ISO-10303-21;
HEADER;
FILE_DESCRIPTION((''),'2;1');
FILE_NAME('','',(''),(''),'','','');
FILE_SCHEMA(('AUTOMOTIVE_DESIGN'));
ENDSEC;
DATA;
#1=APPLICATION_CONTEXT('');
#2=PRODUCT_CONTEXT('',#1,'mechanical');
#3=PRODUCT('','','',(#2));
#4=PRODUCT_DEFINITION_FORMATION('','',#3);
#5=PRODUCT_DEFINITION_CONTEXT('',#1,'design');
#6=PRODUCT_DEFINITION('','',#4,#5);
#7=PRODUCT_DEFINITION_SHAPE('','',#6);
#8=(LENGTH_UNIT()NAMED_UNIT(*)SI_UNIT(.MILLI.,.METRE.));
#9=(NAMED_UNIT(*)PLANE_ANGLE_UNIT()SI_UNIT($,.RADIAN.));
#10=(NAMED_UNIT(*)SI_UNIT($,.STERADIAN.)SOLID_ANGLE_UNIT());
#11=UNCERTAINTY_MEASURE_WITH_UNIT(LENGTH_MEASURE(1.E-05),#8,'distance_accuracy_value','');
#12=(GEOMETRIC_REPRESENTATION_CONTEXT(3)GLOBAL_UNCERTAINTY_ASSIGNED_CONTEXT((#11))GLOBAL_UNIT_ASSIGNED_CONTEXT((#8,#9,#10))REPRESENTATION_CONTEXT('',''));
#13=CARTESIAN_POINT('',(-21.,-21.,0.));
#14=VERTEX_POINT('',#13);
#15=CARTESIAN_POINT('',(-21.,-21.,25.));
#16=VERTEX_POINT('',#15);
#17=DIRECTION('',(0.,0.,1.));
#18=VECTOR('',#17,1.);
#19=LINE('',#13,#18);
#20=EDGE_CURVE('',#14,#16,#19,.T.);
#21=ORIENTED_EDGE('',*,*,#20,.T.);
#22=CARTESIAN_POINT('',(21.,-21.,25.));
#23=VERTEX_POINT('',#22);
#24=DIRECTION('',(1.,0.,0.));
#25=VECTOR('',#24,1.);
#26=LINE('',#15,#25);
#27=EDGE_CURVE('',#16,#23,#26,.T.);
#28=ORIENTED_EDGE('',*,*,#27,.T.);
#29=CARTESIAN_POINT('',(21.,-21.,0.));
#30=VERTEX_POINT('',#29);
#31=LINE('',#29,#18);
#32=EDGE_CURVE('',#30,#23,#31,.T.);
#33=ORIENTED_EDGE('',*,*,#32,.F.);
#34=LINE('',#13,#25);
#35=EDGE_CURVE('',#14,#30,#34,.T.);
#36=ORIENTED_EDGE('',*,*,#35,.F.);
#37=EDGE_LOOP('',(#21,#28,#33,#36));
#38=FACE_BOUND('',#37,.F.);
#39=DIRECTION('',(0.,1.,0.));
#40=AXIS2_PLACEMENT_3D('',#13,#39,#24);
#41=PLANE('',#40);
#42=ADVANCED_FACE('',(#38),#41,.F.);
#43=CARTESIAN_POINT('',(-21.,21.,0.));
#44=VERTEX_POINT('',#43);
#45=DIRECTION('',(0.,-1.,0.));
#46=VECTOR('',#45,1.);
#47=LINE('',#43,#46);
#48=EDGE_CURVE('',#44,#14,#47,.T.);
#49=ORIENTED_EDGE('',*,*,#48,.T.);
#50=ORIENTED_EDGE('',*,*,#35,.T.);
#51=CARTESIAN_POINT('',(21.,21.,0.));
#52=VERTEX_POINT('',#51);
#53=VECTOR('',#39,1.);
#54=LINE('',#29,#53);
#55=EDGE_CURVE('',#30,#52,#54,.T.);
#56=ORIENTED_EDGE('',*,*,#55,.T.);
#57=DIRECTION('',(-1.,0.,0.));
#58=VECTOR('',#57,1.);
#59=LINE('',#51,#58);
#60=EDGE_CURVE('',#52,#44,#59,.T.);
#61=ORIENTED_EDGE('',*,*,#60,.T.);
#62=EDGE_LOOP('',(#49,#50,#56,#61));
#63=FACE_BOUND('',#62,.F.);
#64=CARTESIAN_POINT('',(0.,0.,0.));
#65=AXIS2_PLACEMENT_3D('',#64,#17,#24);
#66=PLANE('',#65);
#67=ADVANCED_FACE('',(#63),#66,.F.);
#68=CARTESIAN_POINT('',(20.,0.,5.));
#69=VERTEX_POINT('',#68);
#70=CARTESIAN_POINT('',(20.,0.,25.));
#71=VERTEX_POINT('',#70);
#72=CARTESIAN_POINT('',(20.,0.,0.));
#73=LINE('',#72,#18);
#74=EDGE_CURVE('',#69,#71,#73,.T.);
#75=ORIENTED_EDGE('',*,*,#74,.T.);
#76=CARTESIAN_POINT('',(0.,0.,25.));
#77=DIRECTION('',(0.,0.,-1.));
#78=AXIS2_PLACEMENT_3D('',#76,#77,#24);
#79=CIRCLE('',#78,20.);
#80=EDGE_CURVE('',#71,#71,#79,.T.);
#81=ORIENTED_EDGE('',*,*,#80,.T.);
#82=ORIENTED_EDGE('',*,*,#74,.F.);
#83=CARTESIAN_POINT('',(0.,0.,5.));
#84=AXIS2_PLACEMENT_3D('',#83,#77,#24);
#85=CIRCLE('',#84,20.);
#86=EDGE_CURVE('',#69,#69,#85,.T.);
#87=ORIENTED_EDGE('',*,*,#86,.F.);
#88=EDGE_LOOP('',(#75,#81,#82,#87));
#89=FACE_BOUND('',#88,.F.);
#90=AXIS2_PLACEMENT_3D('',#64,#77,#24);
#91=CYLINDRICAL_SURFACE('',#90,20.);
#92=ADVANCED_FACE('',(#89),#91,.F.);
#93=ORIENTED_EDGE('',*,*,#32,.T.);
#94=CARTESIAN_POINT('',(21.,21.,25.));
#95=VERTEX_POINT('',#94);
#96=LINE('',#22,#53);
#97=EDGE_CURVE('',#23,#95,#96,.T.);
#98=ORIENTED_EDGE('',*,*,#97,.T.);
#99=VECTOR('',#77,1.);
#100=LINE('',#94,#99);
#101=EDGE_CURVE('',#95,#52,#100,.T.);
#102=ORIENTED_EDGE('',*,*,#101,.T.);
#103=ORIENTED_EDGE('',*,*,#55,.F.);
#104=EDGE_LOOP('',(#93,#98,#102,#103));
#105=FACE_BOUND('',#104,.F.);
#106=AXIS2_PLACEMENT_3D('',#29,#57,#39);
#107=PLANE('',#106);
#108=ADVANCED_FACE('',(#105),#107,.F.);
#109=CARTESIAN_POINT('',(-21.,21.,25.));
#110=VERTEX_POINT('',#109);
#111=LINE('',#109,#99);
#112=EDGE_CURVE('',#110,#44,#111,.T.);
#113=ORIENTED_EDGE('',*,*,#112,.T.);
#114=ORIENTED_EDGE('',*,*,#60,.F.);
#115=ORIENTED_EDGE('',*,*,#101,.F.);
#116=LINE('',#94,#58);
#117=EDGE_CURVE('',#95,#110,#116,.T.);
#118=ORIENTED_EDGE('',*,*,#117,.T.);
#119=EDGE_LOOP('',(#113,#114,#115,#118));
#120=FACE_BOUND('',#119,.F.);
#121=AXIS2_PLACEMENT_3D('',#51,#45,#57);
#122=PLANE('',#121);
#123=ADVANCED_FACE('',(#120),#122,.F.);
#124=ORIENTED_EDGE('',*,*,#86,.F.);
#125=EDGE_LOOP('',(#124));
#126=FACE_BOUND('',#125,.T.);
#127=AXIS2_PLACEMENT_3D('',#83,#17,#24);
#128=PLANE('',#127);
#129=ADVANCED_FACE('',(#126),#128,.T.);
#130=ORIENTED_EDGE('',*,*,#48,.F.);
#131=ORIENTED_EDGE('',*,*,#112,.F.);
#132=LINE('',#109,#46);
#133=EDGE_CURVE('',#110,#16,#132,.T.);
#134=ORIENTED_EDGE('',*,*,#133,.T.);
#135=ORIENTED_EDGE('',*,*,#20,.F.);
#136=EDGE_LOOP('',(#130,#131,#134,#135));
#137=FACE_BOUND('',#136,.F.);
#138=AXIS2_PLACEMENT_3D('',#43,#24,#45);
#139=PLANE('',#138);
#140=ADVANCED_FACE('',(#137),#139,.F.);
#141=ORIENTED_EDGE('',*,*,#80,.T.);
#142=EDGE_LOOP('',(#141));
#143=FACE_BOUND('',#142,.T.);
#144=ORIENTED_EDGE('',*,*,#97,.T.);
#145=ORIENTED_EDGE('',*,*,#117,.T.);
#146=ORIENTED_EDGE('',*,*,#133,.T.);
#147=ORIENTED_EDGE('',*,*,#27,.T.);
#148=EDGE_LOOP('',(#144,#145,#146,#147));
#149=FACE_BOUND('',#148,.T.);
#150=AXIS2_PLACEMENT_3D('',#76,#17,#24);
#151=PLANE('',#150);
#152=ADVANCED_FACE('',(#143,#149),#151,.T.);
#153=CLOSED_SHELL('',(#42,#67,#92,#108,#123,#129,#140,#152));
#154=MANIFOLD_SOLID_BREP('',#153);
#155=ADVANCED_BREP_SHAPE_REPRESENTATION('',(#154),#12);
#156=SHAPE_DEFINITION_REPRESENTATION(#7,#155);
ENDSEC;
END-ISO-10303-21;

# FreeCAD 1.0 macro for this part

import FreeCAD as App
import Part
import Sketcher

doc = App.newDocument("Part")
params = doc.addObject("Spreadsheet::Sheet", "Params")
for row, (alias, value) in enumerate([
    ("sketch1_width", "42 mm"),
    ("pad1_length", "5 mm"),
    ("sketch2_diameter", "40 mm"),
    ("sketch2_width", "42 mm"),
    ("pad2_length", "25 mm"),
], start=1):
    params.set(f"A{row}", alias)
    params.set(f"B{row}", "=" + value)
    params.setAlias(f"B{row}", alias)

body = doc.addObject("PartDesign::Body", "Body")

# Sketch on XY plane
sketch1 = body.newObject("Sketcher::SketchObject", "Sketch")
sketch1.AttachmentSupport = (doc.getObject("XY_Plane"), [""])
sketch1.MapMode = "FlatFace"
sketch1.addGeometry(Part.LineSegment(App.Vector(-21, 21, 0), App.Vector(-21, -21, 0)), False)
sketch1.addGeometry(Part.LineSegment(App.Vector(-21, -21, 0), App.Vector(21, -21, 0)), False)
sketch1.addGeometry(Part.LineSegment(App.Vector(21, -21, 0), App.Vector(21, 21, 0)), False)
sketch1.addGeometry(Part.LineSegment(App.Vector(21, 21, 0), App.Vector(-21, 21, 0)), False)
sketch1.addConstraint(Sketcher.Constraint("Coincident", 0, 2, 1, 1))
sketch1.addConstraint(Sketcher.Constraint("Coincident", 1, 2, 2, 1))
sketch1.addConstraint(Sketcher.Constraint("Coincident", 2, 2, 3, 1))
sketch1.addConstraint(Sketcher.Constraint("Coincident", 3, 2, 0, 1))
sketch1.addConstraint(Sketcher.Constraint("Vertical", 0))
sketch1.addConstraint(Sketcher.Constraint("Horizontal", 1))
sketch1.addConstraint(Sketcher.Constraint("Vertical", 2))
sketch1.addConstraint(Sketcher.Constraint("Horizontal", 3))
sketch1.addConstraint(Sketcher.Constraint("Symmetric", 0, 2, 2, 2, -1, 1))
sketch1.addConstraint(Sketcher.Constraint("Equal", 3, 0))
sketch1.addConstraint(Sketcher.Constraint("DistanceX", 1, 1, 1, 2, 42.0))
sketch1.setExpression("Constraints[10]", "Params.sketch1_width")
pad1 = body.newObject("PartDesign::Pad", "Pad")
pad1.Profile = sketch1
pad1.setExpression("Length", "Params.pad1_length")

# Sketch on XY plane
sketch2 = body.newObject("Sketcher::SketchObject", "Sketch001")
sketch2.AttachmentSupport = (doc.getObject("XY_Plane"), [""])
sketch2.MapMode = "FlatFace"
sketch2.addGeometry(Part.LineSegment(App.Vector(-21, 21, 0), App.Vector(-21, -21, 0)), False)
sketch2.addGeometry(Part.LineSegment(App.Vector(-21, -21, 0), App.Vector(21, -21, 0)), False)
sketch2.addGeometry(Part.LineSegment(App.Vector(21, -21, 0), App.Vector(21, 21, 0)), False)
sketch2.addGeometry(Part.LineSegment(App.Vector(21, 21, 0), App.Vector(-21, 21, 0)), False)
sketch2.addGeometry(Part.Circle(App.Vector(0, 0, 0), App.Vector(0, 0, 1), 20), False)
sketch2.addConstraint(Sketcher.Constraint("Coincident", 0, 2, 1, 1))
sketch2.addConstraint(Sketcher.Constraint("Coincident", 1, 2, 2, 1))
sketch2.addConstraint(Sketcher.Constraint("Coincident", 2, 2, 3, 1))
sketch2.addConstraint(Sketcher.Constraint("Coincident", 3, 2, 0, 1))
sketch2.addConstraint(Sketcher.Constraint("Vertical", 0))
sketch2.addConstraint(Sketcher.Constraint("Horizontal", 1))
sketch2.addConstraint(Sketcher.Constraint("Vertical", 2))
sketch2.addConstraint(Sketcher.Constraint("Horizontal", 3))
sketch2.addConstraint(Sketcher.Constraint("Coincident", 4, 3, -1, 1))
sketch2.addConstraint(Sketcher.Constraint("Symmetric", 0, 2, 2, 2, -1, 1))
sketch2.addConstraint(Sketcher.Constraint("Equal", 3, 0))
sketch2.addConstraint(Sketcher.Constraint("Diameter", 4, 40.0))
sketch2.addConstraint(Sketcher.Constraint("DistanceX", 1, 1, 1, 2, 42.0))
sketch2.setExpression("Constraints[11]", "Params.sketch2_diameter")
sketch2.setExpression("Constraints[12]", "Params.sketch2_width")
pad2 = body.newObject("PartDesign::Pad", "Pad001")
pad2.Profile = sketch2
pad2.setExpression("Length", "Params.pad2_length")

doc.recompute()
